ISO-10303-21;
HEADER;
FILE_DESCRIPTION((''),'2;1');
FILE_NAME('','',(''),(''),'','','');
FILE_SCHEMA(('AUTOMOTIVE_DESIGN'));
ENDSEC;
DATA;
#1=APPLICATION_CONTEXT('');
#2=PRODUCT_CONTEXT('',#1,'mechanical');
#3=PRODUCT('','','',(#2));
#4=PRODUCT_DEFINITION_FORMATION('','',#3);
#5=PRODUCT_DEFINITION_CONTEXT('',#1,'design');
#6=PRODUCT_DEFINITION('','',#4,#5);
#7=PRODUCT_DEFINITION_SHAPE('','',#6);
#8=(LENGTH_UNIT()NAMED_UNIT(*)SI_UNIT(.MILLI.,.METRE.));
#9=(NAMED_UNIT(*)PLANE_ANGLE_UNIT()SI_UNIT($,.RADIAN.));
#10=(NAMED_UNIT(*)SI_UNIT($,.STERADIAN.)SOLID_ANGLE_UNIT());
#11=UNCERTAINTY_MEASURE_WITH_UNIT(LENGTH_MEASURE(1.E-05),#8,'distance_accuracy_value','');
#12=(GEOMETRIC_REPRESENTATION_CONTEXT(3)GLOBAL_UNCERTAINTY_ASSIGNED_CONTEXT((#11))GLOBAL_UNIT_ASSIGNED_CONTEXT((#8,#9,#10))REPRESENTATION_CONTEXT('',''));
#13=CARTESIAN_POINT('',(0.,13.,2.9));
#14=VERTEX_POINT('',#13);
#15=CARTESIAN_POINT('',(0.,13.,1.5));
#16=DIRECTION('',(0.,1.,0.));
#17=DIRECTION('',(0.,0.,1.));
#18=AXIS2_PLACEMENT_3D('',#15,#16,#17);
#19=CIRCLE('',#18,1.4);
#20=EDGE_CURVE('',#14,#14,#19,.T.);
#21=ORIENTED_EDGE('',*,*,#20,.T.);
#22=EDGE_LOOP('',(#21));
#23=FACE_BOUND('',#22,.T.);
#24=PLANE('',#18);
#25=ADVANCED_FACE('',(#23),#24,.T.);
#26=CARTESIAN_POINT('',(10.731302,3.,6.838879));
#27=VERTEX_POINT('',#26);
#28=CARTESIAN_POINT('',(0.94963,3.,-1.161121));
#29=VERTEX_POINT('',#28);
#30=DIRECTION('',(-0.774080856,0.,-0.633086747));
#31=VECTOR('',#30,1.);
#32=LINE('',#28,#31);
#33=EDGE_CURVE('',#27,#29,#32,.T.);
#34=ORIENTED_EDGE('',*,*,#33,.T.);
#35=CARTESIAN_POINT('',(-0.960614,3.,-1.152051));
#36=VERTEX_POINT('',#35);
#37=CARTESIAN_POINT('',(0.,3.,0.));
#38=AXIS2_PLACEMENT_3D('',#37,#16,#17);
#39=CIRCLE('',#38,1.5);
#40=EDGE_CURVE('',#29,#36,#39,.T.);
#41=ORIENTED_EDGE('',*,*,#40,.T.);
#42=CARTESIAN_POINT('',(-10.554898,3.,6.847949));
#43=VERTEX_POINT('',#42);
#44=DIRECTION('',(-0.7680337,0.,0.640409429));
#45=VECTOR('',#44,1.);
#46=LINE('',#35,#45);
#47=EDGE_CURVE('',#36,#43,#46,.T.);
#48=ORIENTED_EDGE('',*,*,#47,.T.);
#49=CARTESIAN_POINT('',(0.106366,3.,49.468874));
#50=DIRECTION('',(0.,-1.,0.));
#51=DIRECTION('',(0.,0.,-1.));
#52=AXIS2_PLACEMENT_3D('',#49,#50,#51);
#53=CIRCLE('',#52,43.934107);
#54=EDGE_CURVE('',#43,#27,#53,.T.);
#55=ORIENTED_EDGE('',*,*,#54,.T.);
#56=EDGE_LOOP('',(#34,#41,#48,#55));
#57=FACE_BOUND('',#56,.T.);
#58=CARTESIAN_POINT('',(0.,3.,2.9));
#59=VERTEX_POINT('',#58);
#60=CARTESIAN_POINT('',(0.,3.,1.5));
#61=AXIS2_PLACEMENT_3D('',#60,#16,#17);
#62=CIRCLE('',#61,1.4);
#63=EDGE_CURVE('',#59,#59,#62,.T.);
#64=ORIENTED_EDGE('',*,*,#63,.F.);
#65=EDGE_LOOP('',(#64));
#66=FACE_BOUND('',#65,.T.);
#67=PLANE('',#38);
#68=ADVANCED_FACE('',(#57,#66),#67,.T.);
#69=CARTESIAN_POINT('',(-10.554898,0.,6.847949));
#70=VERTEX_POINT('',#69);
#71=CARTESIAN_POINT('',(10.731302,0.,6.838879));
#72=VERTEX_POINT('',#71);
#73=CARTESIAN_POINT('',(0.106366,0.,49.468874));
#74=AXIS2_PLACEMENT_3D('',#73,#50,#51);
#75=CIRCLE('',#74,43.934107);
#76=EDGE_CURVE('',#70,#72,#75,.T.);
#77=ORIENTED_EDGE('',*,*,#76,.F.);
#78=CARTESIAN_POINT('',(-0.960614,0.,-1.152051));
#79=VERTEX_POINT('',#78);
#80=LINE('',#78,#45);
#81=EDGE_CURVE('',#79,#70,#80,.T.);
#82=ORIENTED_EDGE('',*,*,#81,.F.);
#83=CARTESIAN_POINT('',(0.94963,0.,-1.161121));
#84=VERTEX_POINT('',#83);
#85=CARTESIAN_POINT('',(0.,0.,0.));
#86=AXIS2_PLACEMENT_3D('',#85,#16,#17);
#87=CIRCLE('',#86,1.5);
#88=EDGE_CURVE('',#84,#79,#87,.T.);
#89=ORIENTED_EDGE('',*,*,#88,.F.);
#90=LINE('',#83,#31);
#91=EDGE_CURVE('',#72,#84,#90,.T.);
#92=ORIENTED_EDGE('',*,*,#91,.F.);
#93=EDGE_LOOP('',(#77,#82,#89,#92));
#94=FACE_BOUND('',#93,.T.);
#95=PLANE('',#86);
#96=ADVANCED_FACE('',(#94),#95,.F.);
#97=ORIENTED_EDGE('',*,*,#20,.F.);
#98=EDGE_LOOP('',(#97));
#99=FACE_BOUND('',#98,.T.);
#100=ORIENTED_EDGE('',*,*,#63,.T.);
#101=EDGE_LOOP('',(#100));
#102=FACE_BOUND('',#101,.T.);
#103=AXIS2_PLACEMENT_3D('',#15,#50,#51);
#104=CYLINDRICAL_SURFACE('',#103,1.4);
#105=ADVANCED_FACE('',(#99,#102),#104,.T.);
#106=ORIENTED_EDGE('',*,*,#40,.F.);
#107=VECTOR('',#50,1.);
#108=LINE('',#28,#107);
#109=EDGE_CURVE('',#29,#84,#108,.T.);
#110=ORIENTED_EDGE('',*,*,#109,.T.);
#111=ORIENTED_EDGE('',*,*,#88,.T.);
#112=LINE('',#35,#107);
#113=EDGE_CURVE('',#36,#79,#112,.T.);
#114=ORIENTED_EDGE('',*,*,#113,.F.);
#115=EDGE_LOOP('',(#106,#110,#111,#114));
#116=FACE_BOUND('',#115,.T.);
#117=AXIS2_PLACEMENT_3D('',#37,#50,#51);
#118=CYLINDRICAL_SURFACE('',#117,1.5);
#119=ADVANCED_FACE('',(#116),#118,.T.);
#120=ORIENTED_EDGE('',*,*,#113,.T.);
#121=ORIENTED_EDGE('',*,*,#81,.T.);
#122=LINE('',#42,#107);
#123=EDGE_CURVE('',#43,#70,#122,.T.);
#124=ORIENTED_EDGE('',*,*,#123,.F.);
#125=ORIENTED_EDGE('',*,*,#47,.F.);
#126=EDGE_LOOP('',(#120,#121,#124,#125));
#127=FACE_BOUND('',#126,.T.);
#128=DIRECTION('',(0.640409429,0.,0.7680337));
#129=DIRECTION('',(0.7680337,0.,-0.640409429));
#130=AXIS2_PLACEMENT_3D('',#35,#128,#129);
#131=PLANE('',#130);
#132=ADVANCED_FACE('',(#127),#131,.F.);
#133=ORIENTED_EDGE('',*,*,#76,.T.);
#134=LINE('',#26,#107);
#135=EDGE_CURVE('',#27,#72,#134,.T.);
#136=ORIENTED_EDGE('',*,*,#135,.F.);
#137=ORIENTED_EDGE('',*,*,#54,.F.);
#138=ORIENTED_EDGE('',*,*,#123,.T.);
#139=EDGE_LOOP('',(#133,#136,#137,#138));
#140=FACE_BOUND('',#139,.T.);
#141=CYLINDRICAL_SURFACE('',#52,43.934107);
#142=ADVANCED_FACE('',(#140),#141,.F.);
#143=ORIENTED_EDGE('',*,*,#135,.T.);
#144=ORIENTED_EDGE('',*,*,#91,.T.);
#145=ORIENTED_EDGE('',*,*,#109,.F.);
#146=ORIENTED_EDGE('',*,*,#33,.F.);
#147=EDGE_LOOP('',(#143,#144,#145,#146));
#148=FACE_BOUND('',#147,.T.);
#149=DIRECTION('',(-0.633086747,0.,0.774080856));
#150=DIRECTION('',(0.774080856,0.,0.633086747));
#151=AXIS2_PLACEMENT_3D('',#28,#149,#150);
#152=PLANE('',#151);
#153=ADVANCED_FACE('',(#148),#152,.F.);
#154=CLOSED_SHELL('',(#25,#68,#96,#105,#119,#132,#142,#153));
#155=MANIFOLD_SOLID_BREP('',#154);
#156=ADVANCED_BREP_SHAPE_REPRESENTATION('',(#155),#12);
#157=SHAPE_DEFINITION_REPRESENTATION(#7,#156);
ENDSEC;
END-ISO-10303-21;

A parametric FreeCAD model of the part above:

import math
import FreeCAD as App
import Part
import Sketcher
from FreeCAD import Vector

doc = App.newDocument("Part")
body = doc.addObject("PartDesign::Body", "Body")

sketch1 = body.newObject("Sketcher::SketchObject", "Sketch")
sketch1.AttachmentSupport = (doc.getObject("XZ_Plane"), [""])
sketch1.MapMode = "FlatFace"
sketch1.addGeometry(Part.LineSegment(Vector(-0.960614, -1.152051, 0), Vector(-10.554898, 6.847949, 0)), False)
sketch1.addGeometry(Part.ArcOfCircle(Part.Circle(Vector(0.106366, 49.468873, 0), Vector(0, 0, 1), 43.934106), math.radians(-104.043876), math.radians(-76.004955)), False)
sketch1.addGeometry(Part.LineSegment(Vector(10.731302, 6.838879, 0), Vector(0.94963, -1.161121, 0)), False)
sketch1.addGeometry(Part.ArcOfCircle(Part.Circle(Vector(0, 0, 0), Vector(0, 0, 1), 1.5), math.radians(-129.822356), math.radians(-50.721774)), False)
sketch1.addConstraint(Sketcher.Constraint("Coincident", 0, 2, 1, 1))
sketch1.addConstraint(Sketcher.Constraint("Coincident", 1, 2, 2, 1))
sketch1.addConstraint(Sketcher.Constraint("Tangent", 2, 2, 3, 2))
sketch1.addConstraint(Sketcher.Constraint("Tangent", 3, 1, 0, 1))
sketch1.addConstraint(Sketcher.Constraint("Coincident", 3, 3, -1, 1))
sketch1.addConstraint(Sketcher.Constraint("Radius", 3, 1.5))
sketch1.addConstraint(Sketcher.Constraint("DistanceY", 2, 2, 1, 2, 8.0))
sketch1.addConstraint(Sketcher.Constraint("DistanceY", 3, 1, 0, 2, 8.0))
sketch1.addConstraint(Sketcher.Constraint("Radius", 1, 43.934106))
sketch1.addConstraint(Sketcher.Constraint("Distance", 2, 12.636499))
sketch1.addConstraint(Sketcher.Constraint("DistanceX", 0, 2, 1, 2, 21.2862))
pad1 = body.newObject("PartDesign::Pad", "Pad")
pad1.Profile = sketch1
pad1.Length = 3
pad1.Reversed = True

sketch2 = body.newObject("Sketcher::SketchObject", "Sketch001")
sketch2.AttachmentSupport = (doc.getObject("XZ_Plane"), [""])
sketch2.MapMode = "FlatFace"
sketch2.AttachmentOffset = App.Placement(Vector(0, 0, -3), App.Rotation())
sketch2.addGeometry(Part.Circle(Vector(0, 1.5, 0), Vector(0, 0, 1), 1.4), False)
sketch2.addConstraint(Sketcher.Constraint("PointOnObject", 0, 3, -2))
sketch2.addConstraint(Sketcher.Constraint("Diameter", 0, 2.8))
sketch2.addConstraint(Sketcher.Constraint("DistanceY", -1, 1, 0, 3, 1.5))
pad2 = body.newObject("PartDesign::Pad", "Pad001")
pad2.Profile = sketch2
pad2.Length = 10
pad2.Reversed = True

doc.recompute()
